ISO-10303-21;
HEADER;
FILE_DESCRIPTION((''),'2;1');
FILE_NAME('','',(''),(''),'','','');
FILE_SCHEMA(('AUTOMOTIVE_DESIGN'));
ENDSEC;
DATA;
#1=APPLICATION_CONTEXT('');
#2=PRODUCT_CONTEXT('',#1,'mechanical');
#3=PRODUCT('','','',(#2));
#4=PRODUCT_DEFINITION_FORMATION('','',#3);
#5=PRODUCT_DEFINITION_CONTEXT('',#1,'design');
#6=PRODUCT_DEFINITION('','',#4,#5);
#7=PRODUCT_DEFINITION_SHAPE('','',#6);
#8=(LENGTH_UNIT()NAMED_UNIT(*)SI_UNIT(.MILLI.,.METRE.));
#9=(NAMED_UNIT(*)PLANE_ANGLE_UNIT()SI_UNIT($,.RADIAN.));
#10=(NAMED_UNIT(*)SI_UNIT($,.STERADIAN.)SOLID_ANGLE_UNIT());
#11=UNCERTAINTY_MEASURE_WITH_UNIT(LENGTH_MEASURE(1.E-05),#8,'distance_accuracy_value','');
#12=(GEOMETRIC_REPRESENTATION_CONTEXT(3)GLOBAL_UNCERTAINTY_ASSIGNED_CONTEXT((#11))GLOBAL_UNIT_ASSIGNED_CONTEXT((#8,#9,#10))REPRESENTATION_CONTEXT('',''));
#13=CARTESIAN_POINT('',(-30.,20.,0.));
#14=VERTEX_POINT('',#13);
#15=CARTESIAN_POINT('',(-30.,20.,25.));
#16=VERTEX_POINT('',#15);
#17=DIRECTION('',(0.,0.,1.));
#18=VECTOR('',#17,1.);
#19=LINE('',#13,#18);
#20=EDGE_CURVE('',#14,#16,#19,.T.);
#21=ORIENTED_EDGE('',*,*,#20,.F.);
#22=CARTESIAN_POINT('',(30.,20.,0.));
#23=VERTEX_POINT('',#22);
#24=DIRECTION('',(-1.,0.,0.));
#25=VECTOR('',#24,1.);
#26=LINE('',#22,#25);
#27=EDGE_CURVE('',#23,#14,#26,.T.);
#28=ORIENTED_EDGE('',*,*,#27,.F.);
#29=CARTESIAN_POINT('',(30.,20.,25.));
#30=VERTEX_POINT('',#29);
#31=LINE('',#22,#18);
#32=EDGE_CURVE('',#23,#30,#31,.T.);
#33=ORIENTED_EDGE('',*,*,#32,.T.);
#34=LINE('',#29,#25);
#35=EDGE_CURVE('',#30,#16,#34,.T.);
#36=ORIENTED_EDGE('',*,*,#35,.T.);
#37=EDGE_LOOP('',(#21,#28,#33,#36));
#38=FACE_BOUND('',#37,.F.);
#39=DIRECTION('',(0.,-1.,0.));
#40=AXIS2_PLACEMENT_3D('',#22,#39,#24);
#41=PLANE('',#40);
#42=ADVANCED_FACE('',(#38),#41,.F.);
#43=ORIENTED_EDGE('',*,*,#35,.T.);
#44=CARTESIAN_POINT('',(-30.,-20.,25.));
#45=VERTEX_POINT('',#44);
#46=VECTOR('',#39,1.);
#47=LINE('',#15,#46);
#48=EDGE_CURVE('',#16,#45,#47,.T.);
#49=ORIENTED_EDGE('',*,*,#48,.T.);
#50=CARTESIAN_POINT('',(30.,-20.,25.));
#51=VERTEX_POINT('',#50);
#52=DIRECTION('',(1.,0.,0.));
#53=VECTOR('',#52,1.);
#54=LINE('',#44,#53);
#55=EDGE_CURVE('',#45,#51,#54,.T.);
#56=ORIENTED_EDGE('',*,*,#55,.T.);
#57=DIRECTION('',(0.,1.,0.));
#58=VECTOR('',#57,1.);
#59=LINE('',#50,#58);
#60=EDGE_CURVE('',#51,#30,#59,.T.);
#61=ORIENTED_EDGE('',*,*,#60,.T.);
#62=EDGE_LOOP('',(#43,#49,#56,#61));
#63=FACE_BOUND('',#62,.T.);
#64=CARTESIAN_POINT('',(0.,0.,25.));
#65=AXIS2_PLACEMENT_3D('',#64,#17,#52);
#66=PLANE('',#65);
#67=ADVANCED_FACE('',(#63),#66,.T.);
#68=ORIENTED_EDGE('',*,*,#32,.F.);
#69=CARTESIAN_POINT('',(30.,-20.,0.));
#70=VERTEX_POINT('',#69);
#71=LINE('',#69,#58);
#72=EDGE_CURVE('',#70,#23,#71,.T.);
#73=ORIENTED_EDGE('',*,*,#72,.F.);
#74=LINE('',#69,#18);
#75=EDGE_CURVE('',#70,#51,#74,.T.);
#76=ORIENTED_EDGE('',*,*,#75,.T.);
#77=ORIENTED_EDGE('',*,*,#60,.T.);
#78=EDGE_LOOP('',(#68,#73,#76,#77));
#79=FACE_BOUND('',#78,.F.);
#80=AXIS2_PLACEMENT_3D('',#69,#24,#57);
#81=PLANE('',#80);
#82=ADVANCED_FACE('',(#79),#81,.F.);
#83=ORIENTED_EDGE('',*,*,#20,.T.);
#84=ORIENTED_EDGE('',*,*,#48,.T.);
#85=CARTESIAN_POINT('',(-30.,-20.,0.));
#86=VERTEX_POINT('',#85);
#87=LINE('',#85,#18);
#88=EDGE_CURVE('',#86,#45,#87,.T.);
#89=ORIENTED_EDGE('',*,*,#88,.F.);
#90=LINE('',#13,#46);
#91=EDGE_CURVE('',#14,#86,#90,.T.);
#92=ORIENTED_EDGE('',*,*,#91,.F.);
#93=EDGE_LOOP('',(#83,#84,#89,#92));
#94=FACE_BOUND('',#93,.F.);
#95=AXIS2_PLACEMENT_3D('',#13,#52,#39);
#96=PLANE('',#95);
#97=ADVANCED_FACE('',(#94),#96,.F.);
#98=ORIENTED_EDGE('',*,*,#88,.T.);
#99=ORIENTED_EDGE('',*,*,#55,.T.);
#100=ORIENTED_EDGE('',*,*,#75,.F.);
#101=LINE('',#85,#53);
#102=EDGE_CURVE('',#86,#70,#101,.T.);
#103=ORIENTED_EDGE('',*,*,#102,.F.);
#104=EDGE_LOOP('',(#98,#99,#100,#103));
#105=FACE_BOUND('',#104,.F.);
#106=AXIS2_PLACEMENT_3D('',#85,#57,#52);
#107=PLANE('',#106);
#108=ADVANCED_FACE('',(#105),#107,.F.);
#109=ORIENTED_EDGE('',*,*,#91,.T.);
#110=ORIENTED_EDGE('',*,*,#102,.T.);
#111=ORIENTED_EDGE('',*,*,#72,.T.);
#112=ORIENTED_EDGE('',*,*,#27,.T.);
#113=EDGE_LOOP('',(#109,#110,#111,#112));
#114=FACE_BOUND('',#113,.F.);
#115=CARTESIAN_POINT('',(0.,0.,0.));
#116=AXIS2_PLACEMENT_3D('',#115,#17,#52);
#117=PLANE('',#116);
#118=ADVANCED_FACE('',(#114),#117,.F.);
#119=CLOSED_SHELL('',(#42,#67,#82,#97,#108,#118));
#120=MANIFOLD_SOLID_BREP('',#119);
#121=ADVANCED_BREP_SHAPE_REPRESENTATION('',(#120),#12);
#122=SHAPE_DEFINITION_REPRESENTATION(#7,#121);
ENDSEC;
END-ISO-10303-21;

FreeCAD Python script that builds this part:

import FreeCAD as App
import Part
import Sketcher
Q = App.Units.Quantity


def add_polygon(sketch, points):
    """Adds a closed chain of lines whose ends are joined by coincident constraints."""
    first, n = sketch.GeometryCount, len(points)
    for a, b in zip(points, points[1:] + points[:1]):
        sketch.addGeometry(Part.LineSegment(App.Vector(*a, 0), App.Vector(*b, 0)), False)
    for i in range(n):
        sketch.addConstraint(Sketcher.Constraint("Coincident", first + i, 2, first + (i + 1) % n, 1))

doc = App.newDocument("Part")
body = doc.addObject("PartDesign::Body", "Body")

sketch1 = doc.addObject("Sketcher::SketchObject", "Sketch")
body.addObject(sketch1)
sketch1.AttachmentSupport = (doc.XY_Plane, [""])
sketch1.MapMode = "FlatFace"
add_polygon(sketch1, [(-30, 20), (-30, -20), (30, -20), (30, 20)])
sketch1.addConstraint([
    Sketcher.Constraint("Vertical", 0),
    Sketcher.Constraint("Horizontal", 1),
    Sketcher.Constraint("Vertical", 2),
    Sketcher.Constraint("Horizontal", 3),
    Sketcher.Constraint("Symmetric", 0, 2, 2, 2, -1, 1),
    Sketcher.Constraint("DistanceX", 1, 1, 1, 2, Q("60 mm")),
    Sketcher.Constraint("DistanceY", 0, 2, 0, 1, Q("40 mm")),
])
pad1 = doc.addObject("PartDesign::Pad", "Pad")
body.addObject(pad1)
pad1.Profile = sketch1
pad1.Length = 25

doc.recompute()
